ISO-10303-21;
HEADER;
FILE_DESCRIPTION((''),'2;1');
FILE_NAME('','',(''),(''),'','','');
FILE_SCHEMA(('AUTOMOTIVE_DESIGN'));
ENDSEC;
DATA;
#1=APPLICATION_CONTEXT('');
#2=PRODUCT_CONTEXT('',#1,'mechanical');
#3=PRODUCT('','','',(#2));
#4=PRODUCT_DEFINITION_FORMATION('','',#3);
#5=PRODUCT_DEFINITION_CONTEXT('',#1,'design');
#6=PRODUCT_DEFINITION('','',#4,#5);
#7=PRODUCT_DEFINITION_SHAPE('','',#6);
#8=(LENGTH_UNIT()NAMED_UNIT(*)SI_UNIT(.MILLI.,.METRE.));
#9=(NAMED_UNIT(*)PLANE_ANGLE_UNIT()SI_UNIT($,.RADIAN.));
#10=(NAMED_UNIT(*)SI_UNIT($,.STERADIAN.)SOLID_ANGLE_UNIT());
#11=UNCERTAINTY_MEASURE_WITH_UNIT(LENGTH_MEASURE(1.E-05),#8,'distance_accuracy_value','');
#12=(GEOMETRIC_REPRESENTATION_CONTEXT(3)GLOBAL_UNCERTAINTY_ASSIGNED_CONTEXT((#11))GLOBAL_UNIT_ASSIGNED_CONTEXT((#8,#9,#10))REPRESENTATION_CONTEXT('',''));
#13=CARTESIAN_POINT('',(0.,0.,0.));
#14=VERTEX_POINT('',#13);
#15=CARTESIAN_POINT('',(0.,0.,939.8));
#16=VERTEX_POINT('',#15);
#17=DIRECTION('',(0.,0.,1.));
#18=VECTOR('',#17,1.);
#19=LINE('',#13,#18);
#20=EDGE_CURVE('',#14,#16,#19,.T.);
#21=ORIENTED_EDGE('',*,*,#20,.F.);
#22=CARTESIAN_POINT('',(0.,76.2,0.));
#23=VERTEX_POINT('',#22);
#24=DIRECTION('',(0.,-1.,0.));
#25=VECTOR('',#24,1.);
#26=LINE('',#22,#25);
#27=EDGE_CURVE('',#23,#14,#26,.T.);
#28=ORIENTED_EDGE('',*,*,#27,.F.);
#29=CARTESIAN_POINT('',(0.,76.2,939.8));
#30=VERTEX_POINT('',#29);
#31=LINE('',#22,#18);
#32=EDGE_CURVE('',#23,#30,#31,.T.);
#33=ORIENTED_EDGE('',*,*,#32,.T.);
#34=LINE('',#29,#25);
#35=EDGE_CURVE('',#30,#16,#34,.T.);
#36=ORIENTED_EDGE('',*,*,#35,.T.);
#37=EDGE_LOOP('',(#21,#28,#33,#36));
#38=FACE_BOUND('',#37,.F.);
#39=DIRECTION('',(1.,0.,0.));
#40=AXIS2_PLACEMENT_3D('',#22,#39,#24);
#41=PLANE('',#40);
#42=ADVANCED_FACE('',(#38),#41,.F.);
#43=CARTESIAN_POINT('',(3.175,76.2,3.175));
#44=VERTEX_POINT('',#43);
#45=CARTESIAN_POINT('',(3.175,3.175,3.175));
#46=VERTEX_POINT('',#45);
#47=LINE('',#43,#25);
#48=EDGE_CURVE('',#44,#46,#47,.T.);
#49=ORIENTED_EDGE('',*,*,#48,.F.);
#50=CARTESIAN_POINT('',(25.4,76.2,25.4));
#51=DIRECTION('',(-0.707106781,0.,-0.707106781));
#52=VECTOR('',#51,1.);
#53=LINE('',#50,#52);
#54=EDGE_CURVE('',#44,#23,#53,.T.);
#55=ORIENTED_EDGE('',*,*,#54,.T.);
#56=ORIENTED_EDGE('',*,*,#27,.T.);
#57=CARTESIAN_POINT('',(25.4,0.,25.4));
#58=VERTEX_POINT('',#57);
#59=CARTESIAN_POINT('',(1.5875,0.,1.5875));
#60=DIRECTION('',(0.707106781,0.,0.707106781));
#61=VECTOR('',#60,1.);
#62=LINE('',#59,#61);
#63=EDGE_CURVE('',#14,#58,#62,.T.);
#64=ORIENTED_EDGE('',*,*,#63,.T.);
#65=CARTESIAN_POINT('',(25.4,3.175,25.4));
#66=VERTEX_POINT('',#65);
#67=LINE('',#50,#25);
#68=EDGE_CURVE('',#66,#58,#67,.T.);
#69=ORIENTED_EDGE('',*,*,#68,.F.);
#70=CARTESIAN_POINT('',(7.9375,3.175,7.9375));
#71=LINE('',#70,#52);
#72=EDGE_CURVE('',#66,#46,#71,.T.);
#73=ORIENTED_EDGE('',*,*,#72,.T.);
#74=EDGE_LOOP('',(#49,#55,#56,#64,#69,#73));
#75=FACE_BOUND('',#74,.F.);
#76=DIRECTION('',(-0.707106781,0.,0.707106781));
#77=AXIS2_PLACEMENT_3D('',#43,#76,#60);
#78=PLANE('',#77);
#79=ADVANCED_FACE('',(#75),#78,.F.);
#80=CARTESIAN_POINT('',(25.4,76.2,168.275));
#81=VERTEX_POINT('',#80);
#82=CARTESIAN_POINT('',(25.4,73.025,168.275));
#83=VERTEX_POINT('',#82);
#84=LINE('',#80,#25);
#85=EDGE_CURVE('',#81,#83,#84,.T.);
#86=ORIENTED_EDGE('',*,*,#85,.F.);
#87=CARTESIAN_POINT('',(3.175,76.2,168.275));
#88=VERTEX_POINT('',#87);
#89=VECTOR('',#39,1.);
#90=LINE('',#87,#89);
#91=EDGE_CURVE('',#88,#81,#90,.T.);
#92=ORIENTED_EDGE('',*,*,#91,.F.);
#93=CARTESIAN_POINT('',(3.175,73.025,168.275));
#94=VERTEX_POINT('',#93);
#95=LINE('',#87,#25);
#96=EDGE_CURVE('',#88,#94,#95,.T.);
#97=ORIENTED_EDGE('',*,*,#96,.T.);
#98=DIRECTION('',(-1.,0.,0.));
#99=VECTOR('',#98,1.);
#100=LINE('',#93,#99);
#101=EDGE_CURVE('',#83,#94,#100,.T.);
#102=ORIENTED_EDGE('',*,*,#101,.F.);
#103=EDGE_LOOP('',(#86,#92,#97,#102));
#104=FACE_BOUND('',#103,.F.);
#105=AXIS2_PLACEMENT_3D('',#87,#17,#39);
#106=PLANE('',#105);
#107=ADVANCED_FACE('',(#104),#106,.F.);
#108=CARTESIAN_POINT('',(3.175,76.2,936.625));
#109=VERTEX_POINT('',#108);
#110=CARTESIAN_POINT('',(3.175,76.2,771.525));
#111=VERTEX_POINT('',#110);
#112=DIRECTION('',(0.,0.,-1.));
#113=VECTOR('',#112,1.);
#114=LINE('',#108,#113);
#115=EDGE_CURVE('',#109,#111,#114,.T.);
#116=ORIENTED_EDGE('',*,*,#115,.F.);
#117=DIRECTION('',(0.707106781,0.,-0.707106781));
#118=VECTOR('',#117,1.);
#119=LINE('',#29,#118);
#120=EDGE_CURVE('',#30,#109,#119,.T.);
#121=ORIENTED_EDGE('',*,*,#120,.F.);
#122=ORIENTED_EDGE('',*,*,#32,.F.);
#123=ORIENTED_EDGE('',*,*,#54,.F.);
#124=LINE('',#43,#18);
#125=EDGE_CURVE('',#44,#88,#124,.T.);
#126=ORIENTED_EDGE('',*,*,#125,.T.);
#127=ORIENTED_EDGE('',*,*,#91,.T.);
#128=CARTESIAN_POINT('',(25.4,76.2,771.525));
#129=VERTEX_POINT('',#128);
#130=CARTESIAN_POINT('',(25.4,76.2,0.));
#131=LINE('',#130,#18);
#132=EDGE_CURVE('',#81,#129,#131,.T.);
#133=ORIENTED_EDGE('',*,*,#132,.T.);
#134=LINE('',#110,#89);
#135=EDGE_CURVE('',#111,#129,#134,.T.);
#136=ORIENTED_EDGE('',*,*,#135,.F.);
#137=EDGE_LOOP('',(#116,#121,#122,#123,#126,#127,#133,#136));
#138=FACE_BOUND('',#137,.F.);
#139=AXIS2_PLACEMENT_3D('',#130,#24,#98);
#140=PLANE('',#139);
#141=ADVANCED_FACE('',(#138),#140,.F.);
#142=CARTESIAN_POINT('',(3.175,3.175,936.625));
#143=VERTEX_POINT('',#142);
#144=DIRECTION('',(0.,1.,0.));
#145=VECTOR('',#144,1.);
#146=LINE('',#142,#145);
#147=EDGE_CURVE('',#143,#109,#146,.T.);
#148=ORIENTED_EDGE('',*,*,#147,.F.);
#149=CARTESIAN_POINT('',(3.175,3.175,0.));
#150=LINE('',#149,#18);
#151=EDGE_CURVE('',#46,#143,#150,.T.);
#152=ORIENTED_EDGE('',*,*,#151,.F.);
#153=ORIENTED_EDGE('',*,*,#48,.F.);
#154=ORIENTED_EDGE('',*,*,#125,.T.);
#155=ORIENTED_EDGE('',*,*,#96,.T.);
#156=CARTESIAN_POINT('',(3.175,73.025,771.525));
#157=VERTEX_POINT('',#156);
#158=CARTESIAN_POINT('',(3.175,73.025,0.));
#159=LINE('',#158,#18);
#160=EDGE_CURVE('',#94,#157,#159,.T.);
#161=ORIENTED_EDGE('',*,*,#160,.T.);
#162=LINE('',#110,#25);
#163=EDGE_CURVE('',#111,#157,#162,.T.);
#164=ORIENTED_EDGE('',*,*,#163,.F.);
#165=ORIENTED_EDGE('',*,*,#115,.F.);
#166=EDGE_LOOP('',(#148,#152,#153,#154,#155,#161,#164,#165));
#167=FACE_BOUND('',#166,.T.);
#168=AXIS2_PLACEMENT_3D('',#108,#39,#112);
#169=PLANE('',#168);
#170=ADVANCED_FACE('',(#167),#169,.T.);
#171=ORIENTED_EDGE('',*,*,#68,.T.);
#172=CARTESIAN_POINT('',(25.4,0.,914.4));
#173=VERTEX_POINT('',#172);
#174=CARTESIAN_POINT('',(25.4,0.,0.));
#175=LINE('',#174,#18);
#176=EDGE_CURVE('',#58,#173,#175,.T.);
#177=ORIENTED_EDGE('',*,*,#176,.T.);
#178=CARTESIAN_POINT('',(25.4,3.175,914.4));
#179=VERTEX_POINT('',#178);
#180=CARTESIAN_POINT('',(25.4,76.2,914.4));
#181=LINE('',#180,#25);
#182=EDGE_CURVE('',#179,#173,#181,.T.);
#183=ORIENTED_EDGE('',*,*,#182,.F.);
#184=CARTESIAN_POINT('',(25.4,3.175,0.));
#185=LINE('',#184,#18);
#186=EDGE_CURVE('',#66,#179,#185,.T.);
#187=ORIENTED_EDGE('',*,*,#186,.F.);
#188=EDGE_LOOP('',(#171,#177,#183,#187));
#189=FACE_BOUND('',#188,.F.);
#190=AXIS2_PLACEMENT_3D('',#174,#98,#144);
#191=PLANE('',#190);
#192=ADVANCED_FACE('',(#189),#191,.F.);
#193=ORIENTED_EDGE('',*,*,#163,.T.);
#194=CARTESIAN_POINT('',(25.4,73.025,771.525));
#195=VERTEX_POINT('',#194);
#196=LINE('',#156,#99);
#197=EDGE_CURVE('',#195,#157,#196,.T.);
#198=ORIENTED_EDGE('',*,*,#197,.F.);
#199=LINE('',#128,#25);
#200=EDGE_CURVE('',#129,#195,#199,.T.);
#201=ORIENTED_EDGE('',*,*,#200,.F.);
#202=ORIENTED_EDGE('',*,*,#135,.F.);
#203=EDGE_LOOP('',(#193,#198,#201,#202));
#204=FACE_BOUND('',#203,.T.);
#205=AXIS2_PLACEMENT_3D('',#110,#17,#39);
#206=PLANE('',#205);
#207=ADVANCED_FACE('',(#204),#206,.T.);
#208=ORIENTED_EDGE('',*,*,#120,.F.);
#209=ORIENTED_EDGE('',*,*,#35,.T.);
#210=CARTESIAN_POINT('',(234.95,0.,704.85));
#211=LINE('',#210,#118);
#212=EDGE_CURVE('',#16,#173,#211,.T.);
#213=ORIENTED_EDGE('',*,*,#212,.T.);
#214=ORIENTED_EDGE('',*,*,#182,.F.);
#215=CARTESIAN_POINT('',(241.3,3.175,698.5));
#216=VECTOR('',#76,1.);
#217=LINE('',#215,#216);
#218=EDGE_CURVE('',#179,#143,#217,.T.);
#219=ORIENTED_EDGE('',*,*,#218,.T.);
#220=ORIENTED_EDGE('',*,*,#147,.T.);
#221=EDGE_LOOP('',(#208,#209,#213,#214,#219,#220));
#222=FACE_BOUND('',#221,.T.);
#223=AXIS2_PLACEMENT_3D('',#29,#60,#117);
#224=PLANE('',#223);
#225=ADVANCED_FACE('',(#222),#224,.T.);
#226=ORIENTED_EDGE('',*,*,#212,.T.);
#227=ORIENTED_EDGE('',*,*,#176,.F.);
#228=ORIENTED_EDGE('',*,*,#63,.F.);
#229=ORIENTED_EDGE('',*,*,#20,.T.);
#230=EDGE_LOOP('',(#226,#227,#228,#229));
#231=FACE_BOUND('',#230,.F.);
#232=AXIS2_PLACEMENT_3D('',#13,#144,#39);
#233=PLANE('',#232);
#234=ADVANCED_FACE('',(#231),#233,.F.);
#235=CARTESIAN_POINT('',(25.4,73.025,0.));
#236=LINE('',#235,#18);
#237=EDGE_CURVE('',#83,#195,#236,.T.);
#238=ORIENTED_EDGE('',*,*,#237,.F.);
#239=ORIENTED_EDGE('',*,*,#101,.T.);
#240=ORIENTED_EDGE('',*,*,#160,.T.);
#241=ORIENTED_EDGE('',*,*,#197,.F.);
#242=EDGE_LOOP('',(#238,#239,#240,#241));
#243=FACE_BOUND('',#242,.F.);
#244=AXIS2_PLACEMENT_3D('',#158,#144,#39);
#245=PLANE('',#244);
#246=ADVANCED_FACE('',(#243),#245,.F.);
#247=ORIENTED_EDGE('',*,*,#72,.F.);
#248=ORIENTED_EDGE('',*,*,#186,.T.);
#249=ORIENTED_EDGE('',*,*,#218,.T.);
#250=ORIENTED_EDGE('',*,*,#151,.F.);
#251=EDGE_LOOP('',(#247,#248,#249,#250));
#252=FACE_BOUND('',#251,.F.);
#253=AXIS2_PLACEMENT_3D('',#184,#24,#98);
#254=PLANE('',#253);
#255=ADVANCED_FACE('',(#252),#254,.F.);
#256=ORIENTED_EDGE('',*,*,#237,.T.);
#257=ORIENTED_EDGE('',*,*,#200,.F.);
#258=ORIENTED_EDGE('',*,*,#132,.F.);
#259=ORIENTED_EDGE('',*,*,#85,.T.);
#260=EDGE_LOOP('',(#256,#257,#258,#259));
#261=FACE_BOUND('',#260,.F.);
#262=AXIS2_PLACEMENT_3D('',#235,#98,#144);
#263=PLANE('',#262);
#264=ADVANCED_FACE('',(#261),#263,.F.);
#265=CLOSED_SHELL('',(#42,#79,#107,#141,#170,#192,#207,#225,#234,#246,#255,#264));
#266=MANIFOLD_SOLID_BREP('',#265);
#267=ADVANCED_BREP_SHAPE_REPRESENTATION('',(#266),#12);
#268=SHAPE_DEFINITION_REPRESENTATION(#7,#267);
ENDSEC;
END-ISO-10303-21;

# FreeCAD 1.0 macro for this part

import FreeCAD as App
import Part
import Sketcher
from FreeCAD import Vector
Q = App.Units.Quantity


def add_polygon(sketch, points):
    """Adds a closed chain of lines whose ends are joined by coincident constraints."""
    first, n = sketch.GeometryCount, len(points)
    for a, b in zip(points, points[1:] + points[:1]):
        sketch.addGeometry(Part.LineSegment(App.Vector(*a, 0), App.Vector(*b, 0)), False)
    for i in range(n):
        sketch.addConstraint(Sketcher.Constraint("Coincident", first + i, 2, first + (i + 1) % n, 1))

doc = App.newDocument("Part")
body = doc.addObject("PartDesign::Body", "Body")

# Sketch on XY plane
sketch1 = body.newObject("Sketcher::SketchObject", "Sketch")
sketch1.AttachmentSupport = (doc.getObject("XY_Plane"), [""])
sketch1.MapMode = "FlatFace"
add_polygon(sketch1, [(0, 76.2), (0, 0), (25.4, 0), (25.4, 3.175), (3.175, 3.175), (3.175, 73.025), (25.4, 73.025), (25.4, 76.2)])  # lines 0-7
sketch1.addConstraint(Sketcher.Constraint("Vertical", 0))
sketch1.addConstraint(Sketcher.Constraint("Horizontal", 1))
sketch1.addConstraint(Sketcher.Constraint("Vertical", 2))
sketch1.addConstraint(Sketcher.Constraint("Horizontal", 3))
sketch1.addConstraint(Sketcher.Constraint("Vertical", 4))
sketch1.addConstraint(Sketcher.Constraint("Horizontal", 5))
sketch1.addConstraint(Sketcher.Constraint("Vertical", 6))
sketch1.addConstraint(Sketcher.Constraint("Horizontal", 7))
sketch1.addConstraint(Sketcher.Constraint("Coincident", 0, 2, -1, 1))
sketch1.addConstraint(Sketcher.Constraint("Vertical", 2, 2, 5, 2))
sketch1.addConstraint(Sketcher.Constraint("Equal", 2, 6))
sketch1.addConstraint(Sketcher.Constraint("DistanceX", 1, 1, 1, 2, Q("1 in")))
sketch1.addConstraint(Sketcher.Constraint("DistanceY", 0, 2, 0, 1, Q("3 in")))
sketch1.addConstraint(Sketcher.Constraint("DistanceY", 2, 1, 2, 2, Q("0.125 in")))
sketch1.addConstraint(Sketcher.Constraint("DistanceX", -1, 1, 3, 2, Q("0.125 in")))
pad1 = body.newObject("PartDesign::Pad", "Pad")
pad1.Profile = sketch1
pad1.Length = Q("37 in")

# Sketch on XZ plane
sketch2 = body.newObject("Sketcher::SketchObject", "Sketch001")
sketch2.AttachmentSupport = (doc.getObject("XZ_Plane"), [""])
sketch2.MapMode = "FlatFace"
sketch2.AttachmentOffset = App.Placement(Vector(0, 0, -3 * 25.4), App.Rotation())
add_polygon(sketch2, [(25.4, 914.4), (0, 939.8), (25.4, 939.8)])  # lines 0-2
add_polygon(sketch2, [(25.4, 0), (0, 0), (25.4, 25.4)])  # lines 3-5
sketch2.addConstraint(Sketcher.Constraint("Horizontal", 1))
sketch2.addConstraint(Sketcher.Constraint("Vertical", 2))
sketch2.addConstraint(Sketcher.Constraint("Horizontal", 3))
sketch2.addConstraint(Sketcher.Constraint("Vertical", 5))
sketch2.addConstraint(Sketcher.Constraint("Coincident", 3, 2, -1, 1))
sketch2.addConstraint(Sketcher.Constraint("PointOnObject", 0, 2, -2))
sketch2.addConstraint(Sketcher.Constraint("Perpendicular", 0, 4))
sketch2.addConstraint(Sketcher.Constraint("Vertical", 2, 2, 4, 2))
sketch2.addConstraint(Sketcher.Constraint("Equal", 3, 2))
sketch2.addConstraint(Sketcher.Constraint("DistanceX", 1, 1, 1, 2, Q("1 in")))
sketch2.addConstraint(Sketcher.Constraint("DistanceY", -1, 1, 0, 2, Q("37 in")))
pocket1 = body.newObject("PartDesign::Pocket", "Pocket")
pocket1.Profile = sketch2
pocket1.Type = "ThroughAll"
pocket1.Reversed = True

# Sketch on XZ plane
sketch3 = body.newObject("Sketcher::SketchObject", "Sketch002")
sketch3.AttachmentSupport = (doc.getObject("XZ_Plane"), [""])
sketch3.MapMode = "FlatFace"
sketch3.AttachmentOffset = App.Placement(Vector(0, 0, -3 * 25.4), App.Rotation())
add_polygon(sketch3, [(3.175, 771.525), (3.175, 936.625), (25.4, 914.4), (25.4, 771.525)])  # lines 0-3
add_polygon(sketch3, [(25.4, 25.4), (3.175, 3.175), (3.175, 168.275), (25.4, 168.275)])  # lines 4-7
sketch3.addConstraint(Sketcher.Constraint("Vertical", 0))
sketch3.addConstraint(Sketcher.Constraint("Vertical", 2))
sketch3.addConstraint(Sketcher.Constraint("Horizontal", 3))
sketch3.addConstraint(Sketcher.Constraint("Vertical", 5))
sketch3.addConstraint(Sketcher.Constraint("Horizontal", 6))
sketch3.addConstraint(Sketcher.Constraint("Vertical", 7))
sketch3.addConstraint(Sketcher.Constraint("Perpendicular", 1, 4))
sketch3.addConstraint(Sketcher.Constraint("Vertical", 3, 2, 4, 2))
sketch3.addConstraint(Sketcher.Constraint("Vertical", 2, 2, 6, 2))
sketch3.addConstraint(Sketcher.Constraint("Equal", 0, 5))
sketch3.addConstraint(Sketcher.Constraint("Equal", 2, 7))
sketch3.addConstraint(Sketcher.Constraint("DistanceY", 0, 1, 0, 2, Q("6.5 in")))
sketch3.addConstraint(Sketcher.Constraint("DistanceX", -1, 1, 0, 2, Q("0.125 in")))
sketch3.addConstraint(Sketcher.Constraint("DistanceY", -1, 1, 4, 2, Q("0.125 in")))
sketch3.addConstraint(Sketcher.Constraint("DistanceX", -1, 1, 1, 2, Q("1 in")))
sketch3.addConstraint(Sketcher.Constraint("DistanceY", -1, 1, 1, 2, Q("36 in")))
pocket2 = body.newObject("PartDesign::Pocket", "Pocket001")
pocket2.Profile = sketch3
pocket2.Type = "UpToFirst"
pocket2.Reversed = True

doc.recompute()
